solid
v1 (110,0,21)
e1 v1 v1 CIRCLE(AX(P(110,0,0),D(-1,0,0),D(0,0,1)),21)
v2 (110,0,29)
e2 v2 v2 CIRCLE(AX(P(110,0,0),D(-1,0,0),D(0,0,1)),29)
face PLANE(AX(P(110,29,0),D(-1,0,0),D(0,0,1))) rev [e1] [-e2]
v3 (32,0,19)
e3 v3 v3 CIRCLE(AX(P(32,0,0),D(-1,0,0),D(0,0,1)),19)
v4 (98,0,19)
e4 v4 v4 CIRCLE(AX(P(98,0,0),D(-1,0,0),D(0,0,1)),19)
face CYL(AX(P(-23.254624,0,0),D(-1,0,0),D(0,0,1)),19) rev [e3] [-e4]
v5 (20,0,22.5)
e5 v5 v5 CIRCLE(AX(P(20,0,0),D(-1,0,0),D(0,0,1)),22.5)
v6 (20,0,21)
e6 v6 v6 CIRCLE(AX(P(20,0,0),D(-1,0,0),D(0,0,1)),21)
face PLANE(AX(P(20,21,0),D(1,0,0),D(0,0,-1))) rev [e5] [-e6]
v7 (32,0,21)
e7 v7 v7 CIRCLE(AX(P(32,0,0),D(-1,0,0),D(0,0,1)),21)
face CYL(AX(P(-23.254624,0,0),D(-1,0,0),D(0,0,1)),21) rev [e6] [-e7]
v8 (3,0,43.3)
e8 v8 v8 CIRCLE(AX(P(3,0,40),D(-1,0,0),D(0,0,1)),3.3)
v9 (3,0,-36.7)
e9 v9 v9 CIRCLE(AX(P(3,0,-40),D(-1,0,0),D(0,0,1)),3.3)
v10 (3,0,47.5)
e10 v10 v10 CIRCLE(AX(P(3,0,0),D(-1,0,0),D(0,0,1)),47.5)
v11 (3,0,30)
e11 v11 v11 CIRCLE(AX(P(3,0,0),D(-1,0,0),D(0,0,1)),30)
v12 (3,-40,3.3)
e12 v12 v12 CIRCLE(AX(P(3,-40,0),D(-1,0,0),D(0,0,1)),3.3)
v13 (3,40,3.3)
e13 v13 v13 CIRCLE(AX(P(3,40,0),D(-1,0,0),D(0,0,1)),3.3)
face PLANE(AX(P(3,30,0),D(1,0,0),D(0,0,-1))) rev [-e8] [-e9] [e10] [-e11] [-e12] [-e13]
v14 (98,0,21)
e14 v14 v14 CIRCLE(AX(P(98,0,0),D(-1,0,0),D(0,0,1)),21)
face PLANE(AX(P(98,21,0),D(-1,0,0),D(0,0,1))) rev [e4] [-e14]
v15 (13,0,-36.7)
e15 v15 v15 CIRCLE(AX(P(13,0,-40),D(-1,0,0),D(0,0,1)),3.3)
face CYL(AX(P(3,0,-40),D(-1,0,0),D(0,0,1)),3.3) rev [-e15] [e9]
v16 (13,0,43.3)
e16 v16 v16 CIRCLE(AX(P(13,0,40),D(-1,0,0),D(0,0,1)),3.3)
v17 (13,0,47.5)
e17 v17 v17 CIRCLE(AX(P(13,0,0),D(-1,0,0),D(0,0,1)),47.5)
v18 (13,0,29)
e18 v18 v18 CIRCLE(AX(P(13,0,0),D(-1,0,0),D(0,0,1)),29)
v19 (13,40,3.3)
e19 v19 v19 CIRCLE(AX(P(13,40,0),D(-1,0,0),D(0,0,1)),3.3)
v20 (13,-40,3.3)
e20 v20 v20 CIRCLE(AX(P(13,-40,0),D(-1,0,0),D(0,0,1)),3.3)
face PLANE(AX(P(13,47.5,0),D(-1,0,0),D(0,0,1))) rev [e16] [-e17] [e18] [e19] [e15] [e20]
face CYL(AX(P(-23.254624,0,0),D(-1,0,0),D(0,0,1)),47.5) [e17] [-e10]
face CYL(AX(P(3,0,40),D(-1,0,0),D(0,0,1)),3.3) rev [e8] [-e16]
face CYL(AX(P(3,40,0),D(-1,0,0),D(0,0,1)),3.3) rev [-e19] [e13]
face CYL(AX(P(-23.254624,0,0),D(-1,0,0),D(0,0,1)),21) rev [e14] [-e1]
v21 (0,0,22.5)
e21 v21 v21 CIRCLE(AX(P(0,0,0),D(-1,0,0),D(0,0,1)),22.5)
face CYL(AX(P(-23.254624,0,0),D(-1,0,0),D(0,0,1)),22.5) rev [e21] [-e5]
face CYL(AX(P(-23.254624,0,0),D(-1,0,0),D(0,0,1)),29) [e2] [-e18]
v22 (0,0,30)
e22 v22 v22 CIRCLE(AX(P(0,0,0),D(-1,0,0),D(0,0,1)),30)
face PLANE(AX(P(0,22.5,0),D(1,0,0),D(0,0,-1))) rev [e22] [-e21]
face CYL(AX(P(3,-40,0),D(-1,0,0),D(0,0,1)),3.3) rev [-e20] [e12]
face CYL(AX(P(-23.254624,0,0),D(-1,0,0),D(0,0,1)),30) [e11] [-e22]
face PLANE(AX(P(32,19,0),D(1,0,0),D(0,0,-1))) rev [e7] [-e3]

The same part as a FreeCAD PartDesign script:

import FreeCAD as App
import Part
import Sketcher

V = App.Vector

doc = App.newDocument("Part")
body = doc.addObject("PartDesign::Body", "Body")

# Sketch on XY plane
sketch1 = doc.addObject("Sketcher::SketchObject", "Sketch")
body.addObject(sketch1)
sketch1.AttachmentSupport = (doc.XY_Plane, [""])
sketch1.MapMode = "FlatFace"
sketch1.addGeometry(Part.LineSegment(V(0, 30, 0), V(0, 22.5, 0)), False)
sketch1.addGeometry(Part.LineSegment(V(0, 22.5, 0), V(20, 22.5, 0)), False)
sketch1.addGeometry(Part.LineSegment(V(20, 22.5, 0), V(20, 21, 0)), False)
sketch1.addGeometry(Part.LineSegment(V(20, 21, 0), V(32, 21, 0)), False)
sketch1.addGeometry(Part.LineSegment(V(32, 21, 0), V(32, 19, 0)), False)
sketch1.addGeometry(Part.LineSegment(V(32, 19, 0), V(98, 19, 0)), False)
sketch1.addGeometry(Part.LineSegment(V(98, 19, 0), V(98, 21, 0)), False)
sketch1.addGeometry(Part.LineSegment(V(98, 21, 0), V(110, 21, 0)), False)
sketch1.addGeometry(Part.LineSegment(V(110, 21, 0), V(110, 29, 0)), False)
sketch1.addGeometry(Part.LineSegment(V(110, 29, 0), V(13, 29, 0)), False)
sketch1.addGeometry(Part.LineSegment(V(13, 29, 0), V(13, 47.5, 0)), False)
sketch1.addGeometry(Part.LineSegment(V(13, 47.5, 0), V(3, 47.5, 0)), False)
sketch1.addGeometry(Part.LineSegment(V(3, 47.5, 0), V(3, 30, 0)), False)
sketch1.addGeometry(Part.LineSegment(V(3, 30, 0), V(0, 30, 0)), False)
sketch1.addConstraint(Sketcher.Constraint("Coincident", 0, 2, 1, 1))
sketch1.addConstraint(Sketcher.Constraint("Coincident", 1, 2, 2, 1))
sketch1.addConstraint(Sketcher.Constraint("Coincident", 2, 2, 3, 1))
sketch1.addConstraint(Sketcher.Constraint("Coincident", 3, 2, 4, 1))
sketch1.addConstraint(Sketcher.Constraint("Coincident", 4, 2, 5, 1))
sketch1.addConstraint(Sketcher.Constraint("Coincident", 5, 2, 6, 1))
sketch1.addConstraint(Sketcher.Constraint("Coincident", 6, 2, 7, 1))
sketch1.addConstraint(Sketcher.Constraint("Coincident", 7, 2, 8, 1))
sketch1.addConstraint(Sketcher.Constraint("Coincident", 8, 2, 9, 1))
sketch1.addConstraint(Sketcher.Constraint("Coincident", 9, 2, 10, 1))
sketch1.addConstraint(Sketcher.Constraint("Coincident", 10, 2, 11, 1))
sketch1.addConstraint(Sketcher.Constraint("Coincident", 11, 2, 12, 1))
sketch1.addConstraint(Sketcher.Constraint("Coincident", 12, 2, 13, 1))
sketch1.addConstraint(Sketcher.Constraint("Coincident", 13, 2, 0, 1))
sketch1.addConstraint(Sketcher.Constraint("Vertical", 0))
sketch1.addConstraint(Sketcher.Constraint("Horizontal", 1))
sketch1.addConstraint(Sketcher.Constraint("Vertical", 2))
sketch1.addConstraint(Sketcher.Constraint("Horizontal", 3))
sketch1.addConstraint(Sketcher.Constraint("Vertical", 4))
sketch1.addConstraint(Sketcher.Constraint("Horizontal", 5))
sketch1.addConstraint(Sketcher.Constraint("Vertical", 6))
sketch1.addConstraint(Sketcher.Constraint("Horizontal", 7))
sketch1.addConstraint(Sketcher.Constraint("Vertical", 8))
sketch1.addConstraint(Sketcher.Constraint("Horizontal", 9))
sketch1.addConstraint(Sketcher.Constraint("Vertical", 10))
sketch1.addConstraint(Sketcher.Constraint("Horizontal", 11))
sketch1.addConstraint(Sketcher.Constraint("Vertical", 12))
sketch1.addConstraint(Sketcher.Constraint("Horizontal", 13))
sketch1.addConstraint(Sketcher.Constraint("PointOnObject", 0, 2, -2))
sketch1.addConstraint(Sketcher.Constraint("Horizontal", 3, 2, 6, 2))
sketch1.addConstraint(Sketcher.Constraint("Equal", 3, 7))
sketch1.addConstraint(Sketcher.Constraint("DistanceX", 1, 1, 1, 2, 20.0))
sketch1.addConstraint(Sketcher.Constraint("DistanceX", 3, 1, 3, 2, 12.0))
sketch1.addConstraint(Sketcher.Constraint("DistanceX", 5, 1, 5, 2, 66.0))
sketch1.addConstraint(Sketcher.Constraint("DistanceX", 9, 2, 9, 1, 97.0))
sketch1.addConstraint(Sketcher.Constraint("DistanceX", 11, 2, 11, 1, 10.0))
sketch1.addConstraint(Sketcher.Constraint("DistanceY", 4, 2, 4, 1, 2.0))
sketch1.addConstraint(Sketcher.Constraint("DistanceY", 8, 1, 8, 2, 8.0))
sketch1.addConstraint(Sketcher.Constraint("DistanceY", 0, 2, 0, 1, 7.5))
sketch1.addConstraint(Sketcher.Constraint("DistanceY", 2, 2, 2, 1, 1.5))
sketch1.addConstraint(Sketcher.Constraint("DistanceY", 10, 1, 10, 2, 18.5))
sketch1.addConstraint(Sketcher.Constraint("DistanceY", -1, 1, 2, 2, 21.0))
revolution = doc.addObject("PartDesign::Revolution", "Revolution")
body.addObject(revolution)
revolution.Profile = sketch1
revolution.ReferenceAxis = (sketch1, ["H_Axis"])
revolution.Angle = 360

# Sketch on YZ plane
sketch2 = doc.addObject("Sketcher::SketchObject", "Sketch001")
body.addObject(sketch2)
sketch2.AttachmentSupport = (doc.YZ_Plane, [""])
sketch2.MapMode = "FlatFace"
sketch2.AttachmentOffset = App.Placement(V(0, 0, 3), App.Rotation())
sketch2.addGeometry(Part.Circle(V(40, 0, 0), V(0, 0, 1), 3.3), False)
sketch2.addGeometry(Part.Circle(V(0, 40, 0), V(0, 0, 1), 3.3), False)
sketch2.addGeometry(Part.Circle(V(0, -40, 0), V(0, 0, 1), 3.3), False)
sketch2.addGeometry(Part.Circle(V(-40, 0, 0), V(0, 0, 1), 3.3), False)
sketch2.addConstraint(Sketcher.Constraint("Equal", 0, 1))
sketch2.addConstraint(Sketcher.Constraint("Equal", 1, 2))
sketch2.addConstraint(Sketcher.Constraint("Equal", 2, 3))
sketch2.addConstraint(Sketcher.Constraint("Symmetric", 1, 3, 2, 3, -1, 1))
sketch2.addConstraint(Sketcher.Constraint("Symmetric", 0, 3, 3, 3, -1, 1))
sketch2.addConstraint(Sketcher.Constraint("PointOnObject", 0, 3, -1))
sketch2.addConstraint(Sketcher.Constraint("PointOnObject", 1, 3, -2))
sketch2.addConstraint(Sketcher.Constraint("Diameter", 0, 6.6))
sketch2.addConstraint(Sketcher.Constraint("DistanceX", -1, 1, 0, 3, 40.0))
sketch2.addConstraint(Sketcher.Constraint("DistanceY", -1, 1, 1, 3, 40.0))
doc.recompute()
hole = doc.addObject("PartDesign::Hole", "Hole")
body.addObject(hole)
hole.Profile = sketch2
hole.ThreadType = "None"
hole.Diameter = 6.6
hole.DepthType = "ThroughAll"
hole.Reversed = True

doc.recompute()
